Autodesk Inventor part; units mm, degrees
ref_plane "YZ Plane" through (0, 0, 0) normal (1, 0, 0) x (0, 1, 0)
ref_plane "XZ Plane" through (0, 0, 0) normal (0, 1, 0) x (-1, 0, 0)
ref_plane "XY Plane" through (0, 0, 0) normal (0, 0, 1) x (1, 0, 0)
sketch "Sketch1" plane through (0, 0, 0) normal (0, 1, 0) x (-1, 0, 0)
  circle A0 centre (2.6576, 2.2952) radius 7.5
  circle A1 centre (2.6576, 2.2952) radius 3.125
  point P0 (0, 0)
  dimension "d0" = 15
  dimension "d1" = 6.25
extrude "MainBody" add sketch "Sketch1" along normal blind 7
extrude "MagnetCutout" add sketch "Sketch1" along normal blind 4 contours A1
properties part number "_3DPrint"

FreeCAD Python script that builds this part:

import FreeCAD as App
import Part
import Sketcher
Q = App.Units.Quantity

doc = App.newDocument("Part")
params = doc.addObject("Spreadsheet::Sheet", "Params")
for row, (alias, value) in enumerate([
    ("sketch1_diameter", "15 mm"),
    ("sketch1_diameter2", "6.25 mm"),
    ("pad1_length", "7 mm"),
    ("sketch2_diameter", "6.25 mm"),
    ("pad2_length", "4 mm"),
], start=1):
    params.set(f"A{row}", alias)
    params.set(f"B{row}", "=" + value)
    params.setAlias(f"B{row}", alias)

body = doc.addObject("PartDesign::Body", "Body")

# Sketch on XZ plane
sketch1 = doc.addObject("Sketcher::SketchObject", "Sketch")
body.addObject(sketch1)
sketch1.AttachmentSupport = (doc.XZ_Plane, [""])
sketch1.MapMode = "FlatFace"
sketch1.addGeometry(Part.Circle(App.Vector(-2.7, 2.3, 0), App.Vector(0, 0, 1), 7.5), False)
sketch1.addGeometry(Part.Circle(App.Vector(-2.7, 2.3, 0), App.Vector(0, 0, 1), 3.1), False)
sketch1.addConstraint(Sketcher.Constraint("Coincident", 1, 3, 0, 3))
sketch1.addConstraint(Sketcher.Constraint("Diameter", 0, Q("15 mm")))
sketch1.addConstraint(Sketcher.Constraint("Diameter", 1, Q("6.25 mm")))
sketch1.addConstraint(Sketcher.Constraint("DistanceX", 0, 3, -1, 1, Q("2.6576 mm")))
sketch1.addConstraint(Sketcher.Constraint("DistanceY", -1, 1, 0, 3, Q("2.2952 mm")))
sketch1.setExpression("Constraints[1]", "Params.sketch1_diameter")
sketch1.setExpression("Constraints[2]", "Params.sketch1_diameter2")
pad1 = doc.addObject("PartDesign::Pad", "Pad")
body.addObject(pad1)
pad1.Profile = sketch1
pad1.setExpression("Length", "Params.pad1_length")
pad1.Reversed = True

# Sketch on XZ plane
sketch2 = doc.addObject("Sketcher::SketchObject", "Sketch001")
body.addObject(sketch2)
sketch2.AttachmentSupport = (doc.XZ_Plane, [""])
sketch2.MapMode = "FlatFace"
sketch2.addGeometry(Part.Circle(App.Vector(-2.7, 2.3, 0), App.Vector(0, 0, 1), 3.1), False)
sketch2.addConstraint(Sketcher.Constraint("Diameter", 0, Q("6.25 mm")))
sketch2.addConstraint(Sketcher.Constraint("DistanceX", 0, 3, -1, 1, Q("2.6576 mm")))
sketch2.addConstraint(Sketcher.Constraint("DistanceY", -1, 1, 0, 3, Q("2.2952 mm")))
sketch2.setExpression("Constraints[0]", "Params.sketch2_diameter")
pad2 = doc.addObject("PartDesign::Pad", "Pad001")
body.addObject(pad2)
pad2.Profile = sketch2
pad2.setExpression("Length", "Params.pad2_length")
pad2.Reversed = True

doc.recompute()
